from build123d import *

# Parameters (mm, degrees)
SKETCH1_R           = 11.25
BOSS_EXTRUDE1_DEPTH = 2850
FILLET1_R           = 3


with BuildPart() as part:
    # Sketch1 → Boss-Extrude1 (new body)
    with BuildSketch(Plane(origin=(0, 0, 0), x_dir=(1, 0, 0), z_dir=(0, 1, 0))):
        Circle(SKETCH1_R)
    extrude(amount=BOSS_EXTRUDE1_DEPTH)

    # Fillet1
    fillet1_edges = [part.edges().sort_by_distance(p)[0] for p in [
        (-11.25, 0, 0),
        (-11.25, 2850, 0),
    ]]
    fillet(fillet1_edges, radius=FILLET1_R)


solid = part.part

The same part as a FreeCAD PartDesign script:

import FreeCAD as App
import Part
import Sketcher


def edges_at(feature, points):
    """Names of the edges that pass closest to the given points."""
    edges = feature.Shape.Edges
    near = lambda p: min(range(len(edges)), key=lambda i: edges[i].distToShape(Part.Vertex(*p))[0])
    return sorted({f"Edge{near(p) + 1}" for p in points})

doc = App.newDocument("Part")
body = doc.addObject("PartDesign::Body", "Body")

sketch1 = body.newObject("Sketcher::SketchObject", "Sketch")
sketch1.AttachmentSupport = (doc.getObject("XZ_Plane"), [""])
sketch1.MapMode = "FlatFace"
sketch1.addGeometry(Part.Circle(App.Vector(0, 0, 0), App.Vector(0, 0, 1), 11.25), False)
sketch1.addConstraint(Sketcher.Constraint("Coincident", 0, 3, -1, 1))
sketch1.addConstraint(Sketcher.Constraint("Diameter", 0, 22.5))
pad1 = body.newObject("PartDesign::Pad", "Pad")
pad1.Profile = sketch1
pad1.Length = 2850
pad1.Reversed = True
doc.recompute()

fillet = body.newObject("PartDesign::Fillet", "Fillet")
fillet.Base = (pad1, edges_at(pad1, [(-11.25, 0, 0), (-11.25, 2850, 0)]))
fillet.Radius = 3

doc.recompute()
